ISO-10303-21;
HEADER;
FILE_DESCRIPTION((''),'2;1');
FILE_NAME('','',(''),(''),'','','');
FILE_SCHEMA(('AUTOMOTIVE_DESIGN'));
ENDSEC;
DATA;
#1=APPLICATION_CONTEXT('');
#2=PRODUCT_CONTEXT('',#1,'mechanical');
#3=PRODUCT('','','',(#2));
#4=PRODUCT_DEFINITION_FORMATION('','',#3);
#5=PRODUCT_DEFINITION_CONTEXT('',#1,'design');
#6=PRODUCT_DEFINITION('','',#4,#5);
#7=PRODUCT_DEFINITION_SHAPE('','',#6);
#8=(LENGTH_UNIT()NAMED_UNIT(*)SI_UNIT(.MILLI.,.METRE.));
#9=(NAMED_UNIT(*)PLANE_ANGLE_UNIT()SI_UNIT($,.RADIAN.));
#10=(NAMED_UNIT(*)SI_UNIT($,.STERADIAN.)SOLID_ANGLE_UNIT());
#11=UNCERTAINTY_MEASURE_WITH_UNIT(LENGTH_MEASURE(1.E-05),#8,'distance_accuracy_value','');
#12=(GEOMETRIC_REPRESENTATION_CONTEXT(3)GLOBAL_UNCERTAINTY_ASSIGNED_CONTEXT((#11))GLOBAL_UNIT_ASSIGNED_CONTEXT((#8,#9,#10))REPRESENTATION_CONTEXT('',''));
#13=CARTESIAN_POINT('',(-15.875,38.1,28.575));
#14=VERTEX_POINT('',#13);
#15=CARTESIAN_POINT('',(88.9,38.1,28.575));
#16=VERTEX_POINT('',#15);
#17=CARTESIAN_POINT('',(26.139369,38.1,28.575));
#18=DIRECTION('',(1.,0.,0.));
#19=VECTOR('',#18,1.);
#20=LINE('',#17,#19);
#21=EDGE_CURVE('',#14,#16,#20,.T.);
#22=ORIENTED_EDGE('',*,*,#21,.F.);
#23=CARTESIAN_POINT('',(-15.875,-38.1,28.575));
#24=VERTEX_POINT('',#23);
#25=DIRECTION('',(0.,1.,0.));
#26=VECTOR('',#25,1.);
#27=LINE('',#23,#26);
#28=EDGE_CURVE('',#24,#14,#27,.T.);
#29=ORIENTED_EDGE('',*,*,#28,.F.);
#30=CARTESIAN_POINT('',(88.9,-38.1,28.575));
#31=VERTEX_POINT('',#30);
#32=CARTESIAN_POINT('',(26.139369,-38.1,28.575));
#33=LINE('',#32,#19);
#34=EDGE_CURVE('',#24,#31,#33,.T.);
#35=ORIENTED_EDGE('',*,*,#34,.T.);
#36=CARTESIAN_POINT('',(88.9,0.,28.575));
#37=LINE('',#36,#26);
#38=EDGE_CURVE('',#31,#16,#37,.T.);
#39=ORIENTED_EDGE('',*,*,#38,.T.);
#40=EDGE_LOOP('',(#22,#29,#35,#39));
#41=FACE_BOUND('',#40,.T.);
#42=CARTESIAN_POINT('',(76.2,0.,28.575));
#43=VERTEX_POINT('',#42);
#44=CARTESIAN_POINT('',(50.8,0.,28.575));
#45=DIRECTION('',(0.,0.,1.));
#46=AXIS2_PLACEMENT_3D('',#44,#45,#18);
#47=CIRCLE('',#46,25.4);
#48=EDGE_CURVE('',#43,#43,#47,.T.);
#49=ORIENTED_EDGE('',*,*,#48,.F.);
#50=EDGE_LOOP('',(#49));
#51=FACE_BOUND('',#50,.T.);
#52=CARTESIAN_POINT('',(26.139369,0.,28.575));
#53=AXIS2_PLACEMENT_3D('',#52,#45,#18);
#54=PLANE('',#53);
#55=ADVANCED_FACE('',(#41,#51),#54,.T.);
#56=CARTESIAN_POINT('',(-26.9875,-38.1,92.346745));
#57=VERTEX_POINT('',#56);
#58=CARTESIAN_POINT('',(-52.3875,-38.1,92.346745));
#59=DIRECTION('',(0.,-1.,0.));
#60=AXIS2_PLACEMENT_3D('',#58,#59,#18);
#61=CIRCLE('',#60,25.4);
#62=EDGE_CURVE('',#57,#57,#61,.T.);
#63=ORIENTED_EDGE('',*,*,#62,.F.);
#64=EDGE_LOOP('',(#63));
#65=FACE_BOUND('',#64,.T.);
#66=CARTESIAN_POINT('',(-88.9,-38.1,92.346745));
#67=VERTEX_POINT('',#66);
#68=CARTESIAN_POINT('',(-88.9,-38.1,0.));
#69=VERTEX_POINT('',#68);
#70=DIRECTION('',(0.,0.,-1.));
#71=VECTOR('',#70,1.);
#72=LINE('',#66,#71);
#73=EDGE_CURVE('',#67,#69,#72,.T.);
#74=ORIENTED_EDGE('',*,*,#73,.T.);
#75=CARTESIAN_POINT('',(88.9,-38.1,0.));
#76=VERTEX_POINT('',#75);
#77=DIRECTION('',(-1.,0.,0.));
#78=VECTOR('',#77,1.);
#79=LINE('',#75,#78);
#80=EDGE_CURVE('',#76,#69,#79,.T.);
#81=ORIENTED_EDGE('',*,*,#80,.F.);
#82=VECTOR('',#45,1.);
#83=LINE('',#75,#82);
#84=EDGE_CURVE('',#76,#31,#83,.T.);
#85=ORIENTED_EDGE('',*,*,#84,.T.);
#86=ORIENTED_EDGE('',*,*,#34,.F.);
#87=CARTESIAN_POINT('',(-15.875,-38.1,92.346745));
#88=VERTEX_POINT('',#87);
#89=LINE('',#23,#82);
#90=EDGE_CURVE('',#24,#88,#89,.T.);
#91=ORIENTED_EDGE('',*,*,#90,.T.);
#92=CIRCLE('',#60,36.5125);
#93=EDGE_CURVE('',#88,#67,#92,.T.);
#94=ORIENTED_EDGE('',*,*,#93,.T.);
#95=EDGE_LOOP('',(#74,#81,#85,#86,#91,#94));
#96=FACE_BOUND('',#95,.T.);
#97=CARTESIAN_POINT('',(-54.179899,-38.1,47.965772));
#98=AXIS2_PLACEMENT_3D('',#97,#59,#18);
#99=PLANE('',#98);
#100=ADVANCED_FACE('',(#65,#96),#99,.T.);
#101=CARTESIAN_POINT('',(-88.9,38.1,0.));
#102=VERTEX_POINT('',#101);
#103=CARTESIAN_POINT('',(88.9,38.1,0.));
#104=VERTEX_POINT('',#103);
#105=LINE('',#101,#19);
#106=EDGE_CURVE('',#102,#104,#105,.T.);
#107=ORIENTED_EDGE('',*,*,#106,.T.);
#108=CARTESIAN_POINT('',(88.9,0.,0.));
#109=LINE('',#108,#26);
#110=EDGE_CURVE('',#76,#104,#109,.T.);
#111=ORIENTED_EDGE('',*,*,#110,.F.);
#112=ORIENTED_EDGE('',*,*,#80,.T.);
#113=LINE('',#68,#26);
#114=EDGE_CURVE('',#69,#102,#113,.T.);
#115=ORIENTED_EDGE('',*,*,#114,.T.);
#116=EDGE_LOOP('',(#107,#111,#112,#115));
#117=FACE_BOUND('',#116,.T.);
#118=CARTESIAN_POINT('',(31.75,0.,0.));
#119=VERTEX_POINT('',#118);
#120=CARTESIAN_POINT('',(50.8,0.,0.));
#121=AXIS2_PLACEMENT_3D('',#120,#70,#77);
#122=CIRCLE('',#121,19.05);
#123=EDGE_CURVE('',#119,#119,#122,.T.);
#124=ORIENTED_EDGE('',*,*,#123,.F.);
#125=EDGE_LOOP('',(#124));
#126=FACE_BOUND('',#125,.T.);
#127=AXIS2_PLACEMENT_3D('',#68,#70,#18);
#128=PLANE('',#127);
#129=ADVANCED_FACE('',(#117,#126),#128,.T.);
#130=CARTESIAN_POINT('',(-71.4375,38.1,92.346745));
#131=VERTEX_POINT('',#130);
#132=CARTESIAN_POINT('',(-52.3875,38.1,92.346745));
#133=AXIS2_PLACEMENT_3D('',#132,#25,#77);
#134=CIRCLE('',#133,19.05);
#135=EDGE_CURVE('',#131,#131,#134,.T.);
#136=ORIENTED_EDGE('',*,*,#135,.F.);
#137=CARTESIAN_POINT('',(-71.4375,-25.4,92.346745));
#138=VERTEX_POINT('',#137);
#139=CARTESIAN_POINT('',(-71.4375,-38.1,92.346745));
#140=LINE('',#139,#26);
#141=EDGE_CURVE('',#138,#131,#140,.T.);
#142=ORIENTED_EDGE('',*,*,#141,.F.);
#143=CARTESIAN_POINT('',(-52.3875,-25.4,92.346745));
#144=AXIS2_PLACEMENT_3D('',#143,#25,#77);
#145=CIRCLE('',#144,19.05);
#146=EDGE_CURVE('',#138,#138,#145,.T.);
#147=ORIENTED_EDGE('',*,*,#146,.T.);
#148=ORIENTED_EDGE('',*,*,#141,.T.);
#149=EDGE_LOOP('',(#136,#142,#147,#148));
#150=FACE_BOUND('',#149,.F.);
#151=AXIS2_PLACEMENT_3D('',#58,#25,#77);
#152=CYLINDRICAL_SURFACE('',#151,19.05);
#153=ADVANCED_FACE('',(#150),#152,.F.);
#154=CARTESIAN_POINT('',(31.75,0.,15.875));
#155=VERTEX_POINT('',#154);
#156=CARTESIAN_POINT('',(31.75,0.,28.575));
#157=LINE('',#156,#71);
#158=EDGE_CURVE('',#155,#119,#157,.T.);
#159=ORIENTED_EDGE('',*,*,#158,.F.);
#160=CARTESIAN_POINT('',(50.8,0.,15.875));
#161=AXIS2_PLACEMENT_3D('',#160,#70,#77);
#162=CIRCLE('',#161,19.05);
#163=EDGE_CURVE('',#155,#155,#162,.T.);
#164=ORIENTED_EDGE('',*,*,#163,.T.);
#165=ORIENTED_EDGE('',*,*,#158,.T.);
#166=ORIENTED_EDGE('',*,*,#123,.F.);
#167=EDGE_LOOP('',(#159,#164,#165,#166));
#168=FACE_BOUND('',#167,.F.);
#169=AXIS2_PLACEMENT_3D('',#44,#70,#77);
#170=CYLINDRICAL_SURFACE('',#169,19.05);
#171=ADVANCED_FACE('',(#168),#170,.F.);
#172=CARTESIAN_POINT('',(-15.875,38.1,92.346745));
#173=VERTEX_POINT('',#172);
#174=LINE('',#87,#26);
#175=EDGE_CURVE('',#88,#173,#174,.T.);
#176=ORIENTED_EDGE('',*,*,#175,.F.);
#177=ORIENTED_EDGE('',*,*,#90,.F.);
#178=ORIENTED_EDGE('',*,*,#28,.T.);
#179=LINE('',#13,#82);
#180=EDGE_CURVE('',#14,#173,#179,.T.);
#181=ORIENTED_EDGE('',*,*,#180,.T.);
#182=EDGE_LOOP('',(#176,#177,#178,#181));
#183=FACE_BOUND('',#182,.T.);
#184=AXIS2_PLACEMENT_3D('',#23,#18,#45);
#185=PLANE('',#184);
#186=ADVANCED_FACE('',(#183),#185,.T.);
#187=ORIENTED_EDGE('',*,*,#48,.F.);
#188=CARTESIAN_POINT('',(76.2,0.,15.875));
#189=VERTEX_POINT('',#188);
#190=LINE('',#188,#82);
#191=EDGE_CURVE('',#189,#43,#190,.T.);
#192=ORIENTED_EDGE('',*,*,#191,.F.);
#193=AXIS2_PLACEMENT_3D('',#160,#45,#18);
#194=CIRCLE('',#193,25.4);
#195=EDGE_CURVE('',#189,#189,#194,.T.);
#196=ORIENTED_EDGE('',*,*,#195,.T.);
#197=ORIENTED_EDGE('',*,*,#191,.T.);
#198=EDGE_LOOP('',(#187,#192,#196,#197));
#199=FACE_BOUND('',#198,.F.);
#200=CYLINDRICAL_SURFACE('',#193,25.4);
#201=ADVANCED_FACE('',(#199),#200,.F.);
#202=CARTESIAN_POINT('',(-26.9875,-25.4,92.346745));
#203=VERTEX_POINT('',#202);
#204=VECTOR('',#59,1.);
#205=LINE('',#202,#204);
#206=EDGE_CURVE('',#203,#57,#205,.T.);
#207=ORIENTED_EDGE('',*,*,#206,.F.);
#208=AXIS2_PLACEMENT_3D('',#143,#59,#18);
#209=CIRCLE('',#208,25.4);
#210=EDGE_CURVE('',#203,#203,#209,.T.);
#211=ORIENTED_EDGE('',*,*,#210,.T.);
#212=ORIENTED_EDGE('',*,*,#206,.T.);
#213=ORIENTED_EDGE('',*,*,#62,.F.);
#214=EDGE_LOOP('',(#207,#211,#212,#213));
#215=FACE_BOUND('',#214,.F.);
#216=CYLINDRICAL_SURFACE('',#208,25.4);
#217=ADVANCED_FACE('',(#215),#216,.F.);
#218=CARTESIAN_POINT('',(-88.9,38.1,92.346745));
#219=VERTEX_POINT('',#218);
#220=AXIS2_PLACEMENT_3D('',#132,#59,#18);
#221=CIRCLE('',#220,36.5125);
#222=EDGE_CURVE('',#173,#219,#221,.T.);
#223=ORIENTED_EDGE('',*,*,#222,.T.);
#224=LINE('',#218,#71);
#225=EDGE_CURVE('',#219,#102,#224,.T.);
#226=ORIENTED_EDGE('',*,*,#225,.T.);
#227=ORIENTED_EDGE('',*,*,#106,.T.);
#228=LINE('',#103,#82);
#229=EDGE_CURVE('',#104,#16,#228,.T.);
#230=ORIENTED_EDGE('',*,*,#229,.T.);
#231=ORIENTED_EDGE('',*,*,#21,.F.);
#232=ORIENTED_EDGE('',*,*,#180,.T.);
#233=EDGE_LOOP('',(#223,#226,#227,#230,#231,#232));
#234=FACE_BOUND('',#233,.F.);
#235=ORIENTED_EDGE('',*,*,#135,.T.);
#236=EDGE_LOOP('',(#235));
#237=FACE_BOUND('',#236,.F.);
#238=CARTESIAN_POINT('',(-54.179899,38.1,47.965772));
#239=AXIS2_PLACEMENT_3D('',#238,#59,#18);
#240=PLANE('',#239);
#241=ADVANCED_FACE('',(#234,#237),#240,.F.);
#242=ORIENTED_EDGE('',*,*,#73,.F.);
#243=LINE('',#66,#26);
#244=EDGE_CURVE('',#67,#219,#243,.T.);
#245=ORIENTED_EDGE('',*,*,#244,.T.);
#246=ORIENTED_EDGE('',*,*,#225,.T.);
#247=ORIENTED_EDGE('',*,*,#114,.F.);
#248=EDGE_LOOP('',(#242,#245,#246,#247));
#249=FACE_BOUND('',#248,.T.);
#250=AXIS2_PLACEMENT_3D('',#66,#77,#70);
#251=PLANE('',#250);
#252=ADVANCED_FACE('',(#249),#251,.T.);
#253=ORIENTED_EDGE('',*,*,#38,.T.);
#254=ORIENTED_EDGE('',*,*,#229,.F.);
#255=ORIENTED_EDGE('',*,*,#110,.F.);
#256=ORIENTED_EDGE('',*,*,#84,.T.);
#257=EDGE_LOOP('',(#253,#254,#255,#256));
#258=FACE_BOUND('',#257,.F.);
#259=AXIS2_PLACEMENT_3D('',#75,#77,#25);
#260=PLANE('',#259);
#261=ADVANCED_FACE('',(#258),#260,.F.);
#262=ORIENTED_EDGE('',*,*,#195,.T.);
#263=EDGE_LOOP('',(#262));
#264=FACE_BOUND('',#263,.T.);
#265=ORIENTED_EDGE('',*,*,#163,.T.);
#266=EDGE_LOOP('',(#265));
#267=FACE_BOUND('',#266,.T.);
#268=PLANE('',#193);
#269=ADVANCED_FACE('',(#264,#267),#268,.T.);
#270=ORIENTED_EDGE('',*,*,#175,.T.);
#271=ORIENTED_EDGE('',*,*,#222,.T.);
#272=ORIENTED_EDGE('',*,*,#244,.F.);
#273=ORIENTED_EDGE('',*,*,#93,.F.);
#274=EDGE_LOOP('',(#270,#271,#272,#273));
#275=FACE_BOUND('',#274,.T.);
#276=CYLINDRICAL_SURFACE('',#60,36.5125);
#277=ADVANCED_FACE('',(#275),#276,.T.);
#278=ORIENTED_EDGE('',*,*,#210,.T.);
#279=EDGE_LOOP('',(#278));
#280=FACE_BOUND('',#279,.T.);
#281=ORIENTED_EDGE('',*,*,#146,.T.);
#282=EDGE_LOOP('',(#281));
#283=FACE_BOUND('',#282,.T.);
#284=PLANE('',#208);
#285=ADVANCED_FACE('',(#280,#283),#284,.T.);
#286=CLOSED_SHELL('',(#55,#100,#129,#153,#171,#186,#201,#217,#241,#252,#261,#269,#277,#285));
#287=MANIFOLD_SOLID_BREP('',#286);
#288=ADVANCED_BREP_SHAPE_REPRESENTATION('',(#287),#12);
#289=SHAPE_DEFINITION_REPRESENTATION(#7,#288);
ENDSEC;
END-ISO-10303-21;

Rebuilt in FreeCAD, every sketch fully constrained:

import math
import FreeCAD as App
import Part
import Sketcher
Q = App.Units.Quantity

doc = App.newDocument("Part")
body = doc.addObject("PartDesign::Body", "Body")

sketch1 = body.newObject("Sketcher::SketchObject", "Sketch")
sketch1.AttachmentSupport = (doc.getObject("XY_Plane"), [""])
sketch1.MapMode = "FlatFace"
sketch1.addGeometry([
    Part.LineSegment(App.Vector(-37, 38, 0), App.Vector(-37, -38, 0)),
    Part.LineSegment(App.Vector(-37, -38, 0), App.Vector(89, -38, 0)),
    Part.LineSegment(App.Vector(89, -38, 0), App.Vector(89, 38, 0)),
    Part.LineSegment(App.Vector(89, 38, 0), App.Vector(-37, 38, 0)),
], False)
sketch1.addConstraint([
    Sketcher.Constraint("Coincident", 0, 2, 1, 1),
    Sketcher.Constraint("Coincident", 1, 2, 2, 1),
    Sketcher.Constraint("Coincident", 2, 2, 3, 1),
    Sketcher.Constraint("Coincident", 3, 2, 0, 1),
    Sketcher.Constraint("Vertical", 0),
    Sketcher.Constraint("Horizontal", 1),
    Sketcher.Constraint("Vertical", 2),
    Sketcher.Constraint("Horizontal", 3),
    Sketcher.Constraint("DistanceY", 0, 2, 0, 1, Q("3 in")),
    Sketcher.Constraint("DistanceY", 0, 2, -1, 1, Q("1.5 in")),
    Sketcher.Constraint("DistanceX", -1, 1, 1, 2, Q("3.5 in")),
    Sketcher.Constraint("DistanceX", 1, 1, 1, 2, 125.521261),
])
pad1 = body.newObject("PartDesign::Pad", "Pad")
pad1.Profile = sketch1
pad1.Length = Q("1.125 in")

sketch2 = body.newObject("Sketcher::SketchObject", "Sketch001")
sketch2.AttachmentSupport = (doc.getObject("XY_Plane"), [""])
sketch2.MapMode = "FlatFace"
sketch2.AttachmentOffset = App.Placement(App.Vector(0, 0, 1.125 * 25.4), App.Rotation())
sketch2.addGeometry(Part.Circle(App.Vector(51, 0, 0), App.Vector(0, 0, 1), 19), False)
sketch2.addConstraint([
    Sketcher.Constraint("PointOnObject", 0, 3, -1),
    Sketcher.Constraint("Diameter", 0, Q("1.5 in")),
    Sketcher.Constraint("DistanceX", -1, 1, 0, 3, Q("2 in")),
])
doc.recompute()
hole = body.newObject("PartDesign::Hole", "Hole")
hole.Profile = sketch2
hole.ThreadType = "None"
hole.Diameter = Q("1.5 in")
hole.DepthType = "ThroughAll"
hole.HoleCutType = "Counterbore"
hole.HoleCutDiameter = Q("2 in")
hole.HoleCutDepth = Q("0.5 in")

sketch3 = body.newObject("Sketcher::SketchObject", "Sketch002")
sketch3.AttachmentSupport = (doc.getObject("XZ_Plane"), [""])
sketch3.MapMode = "FlatFace"
sketch3.AttachmentOffset = App.Placement(App.Vector(0, 0, 1.5 * 25.4), App.Rotation())
sketch3.addGeometry([
    Part.LineSegment(App.Vector(-89, 92, 0), App.Vector(-89, 0, 0)),
    Part.LineSegment(App.Vector(-89, 0, 0), App.Vector(-37, 0, 0)),
    Part.LineSegment(App.Vector(-37, 0, 0), App.Vector(-37, 29, 0)),
    Part.LineSegment(App.Vector(-37, 29, 0), App.Vector(-16, 29, 0)),
    Part.LineSegment(App.Vector(-16, 29, 0), App.Vector(-16, 92, 0)),
    Part.ArcOfCircle(Part.Circle(App.Vector(-52, 92, 0), App.Vector(0, 0, 1), 37), math.radians(0), math.radians(180)),
], False)
sketch3.addConstraint([
    Sketcher.Constraint("Coincident", 0, 2, 1, 1),
    Sketcher.Constraint("Coincident", 1, 2, 2, 1),
    Sketcher.Constraint("Coincident", 2, 2, 3, 1),
    Sketcher.Constraint("Coincident", 3, 2, 4, 1),
    Sketcher.Constraint("Tangent", 4, 2, 5, 1),
    Sketcher.Constraint("Tangent", 5, 2, 0, 1),
    Sketcher.Constraint("Vertical", 0),
    Sketcher.Constraint("Horizontal", 1),
    Sketcher.Constraint("Vertical", 2),
    Sketcher.Constraint("Horizontal", 3),
    Sketcher.Constraint("Vertical", 4),
    Sketcher.Constraint("PointOnObject", 0, 2, -1),
    Sketcher.Constraint("Radius", 5, Q("1.4375 in")),
    Sketcher.Constraint("DistanceX", 0, 2, -1, 1, Q("3.5 in")),
    Sketcher.Constraint("DistanceY", 2, 1, 2, 2, Q("1.125 in")),
    Sketcher.Constraint("DistanceX", 1, 1, 1, 2, 52.278739),
    Sketcher.Constraint("DistanceY", 0, 2, 0, 1, 92.346745),
])
pad2 = body.newObject("PartDesign::Pad", "Pad001")
pad2.Profile = sketch3
pad2.Length = Q("3 in")
pad2.Reversed = True

sketch4 = body.newObject("Sketcher::SketchObject", "Sketch003")
sketch4.AttachmentSupport = (doc.getObject("XZ_Plane"), [""])
sketch4.MapMode = "FlatFace"
sketch4.AttachmentOffset = App.Placement(App.Vector(0, 0, 1.5 * 25.4), App.Rotation())
sketch4.addGeometry(Part.Circle(App.Vector(-52, 92, 0), App.Vector(0, 0, 1), 19), False)
sketch4.addConstraint([
    Sketcher.Constraint("Diameter", 0, Q("1.5 in")),
    Sketcher.Constraint("DistanceX", 0, 3, -1, 1, Q("2.0625 in")),
    Sketcher.Constraint("DistanceY", -1, 1, 0, 3, 92.346745),
])
doc.recompute()
hole2 = body.newObject("PartDesign::Hole", "Hole001")
hole2.Profile = sketch4
hole2.ThreadType = "None"
hole2.Diameter = Q("1.5 in")
hole2.DepthType = "ThroughAll"
hole2.HoleCutType = "Counterbore"
hole2.HoleCutDiameter = Q("2 in")
hole2.HoleCutDepth = Q("0.5 in")

doc.recompute()
